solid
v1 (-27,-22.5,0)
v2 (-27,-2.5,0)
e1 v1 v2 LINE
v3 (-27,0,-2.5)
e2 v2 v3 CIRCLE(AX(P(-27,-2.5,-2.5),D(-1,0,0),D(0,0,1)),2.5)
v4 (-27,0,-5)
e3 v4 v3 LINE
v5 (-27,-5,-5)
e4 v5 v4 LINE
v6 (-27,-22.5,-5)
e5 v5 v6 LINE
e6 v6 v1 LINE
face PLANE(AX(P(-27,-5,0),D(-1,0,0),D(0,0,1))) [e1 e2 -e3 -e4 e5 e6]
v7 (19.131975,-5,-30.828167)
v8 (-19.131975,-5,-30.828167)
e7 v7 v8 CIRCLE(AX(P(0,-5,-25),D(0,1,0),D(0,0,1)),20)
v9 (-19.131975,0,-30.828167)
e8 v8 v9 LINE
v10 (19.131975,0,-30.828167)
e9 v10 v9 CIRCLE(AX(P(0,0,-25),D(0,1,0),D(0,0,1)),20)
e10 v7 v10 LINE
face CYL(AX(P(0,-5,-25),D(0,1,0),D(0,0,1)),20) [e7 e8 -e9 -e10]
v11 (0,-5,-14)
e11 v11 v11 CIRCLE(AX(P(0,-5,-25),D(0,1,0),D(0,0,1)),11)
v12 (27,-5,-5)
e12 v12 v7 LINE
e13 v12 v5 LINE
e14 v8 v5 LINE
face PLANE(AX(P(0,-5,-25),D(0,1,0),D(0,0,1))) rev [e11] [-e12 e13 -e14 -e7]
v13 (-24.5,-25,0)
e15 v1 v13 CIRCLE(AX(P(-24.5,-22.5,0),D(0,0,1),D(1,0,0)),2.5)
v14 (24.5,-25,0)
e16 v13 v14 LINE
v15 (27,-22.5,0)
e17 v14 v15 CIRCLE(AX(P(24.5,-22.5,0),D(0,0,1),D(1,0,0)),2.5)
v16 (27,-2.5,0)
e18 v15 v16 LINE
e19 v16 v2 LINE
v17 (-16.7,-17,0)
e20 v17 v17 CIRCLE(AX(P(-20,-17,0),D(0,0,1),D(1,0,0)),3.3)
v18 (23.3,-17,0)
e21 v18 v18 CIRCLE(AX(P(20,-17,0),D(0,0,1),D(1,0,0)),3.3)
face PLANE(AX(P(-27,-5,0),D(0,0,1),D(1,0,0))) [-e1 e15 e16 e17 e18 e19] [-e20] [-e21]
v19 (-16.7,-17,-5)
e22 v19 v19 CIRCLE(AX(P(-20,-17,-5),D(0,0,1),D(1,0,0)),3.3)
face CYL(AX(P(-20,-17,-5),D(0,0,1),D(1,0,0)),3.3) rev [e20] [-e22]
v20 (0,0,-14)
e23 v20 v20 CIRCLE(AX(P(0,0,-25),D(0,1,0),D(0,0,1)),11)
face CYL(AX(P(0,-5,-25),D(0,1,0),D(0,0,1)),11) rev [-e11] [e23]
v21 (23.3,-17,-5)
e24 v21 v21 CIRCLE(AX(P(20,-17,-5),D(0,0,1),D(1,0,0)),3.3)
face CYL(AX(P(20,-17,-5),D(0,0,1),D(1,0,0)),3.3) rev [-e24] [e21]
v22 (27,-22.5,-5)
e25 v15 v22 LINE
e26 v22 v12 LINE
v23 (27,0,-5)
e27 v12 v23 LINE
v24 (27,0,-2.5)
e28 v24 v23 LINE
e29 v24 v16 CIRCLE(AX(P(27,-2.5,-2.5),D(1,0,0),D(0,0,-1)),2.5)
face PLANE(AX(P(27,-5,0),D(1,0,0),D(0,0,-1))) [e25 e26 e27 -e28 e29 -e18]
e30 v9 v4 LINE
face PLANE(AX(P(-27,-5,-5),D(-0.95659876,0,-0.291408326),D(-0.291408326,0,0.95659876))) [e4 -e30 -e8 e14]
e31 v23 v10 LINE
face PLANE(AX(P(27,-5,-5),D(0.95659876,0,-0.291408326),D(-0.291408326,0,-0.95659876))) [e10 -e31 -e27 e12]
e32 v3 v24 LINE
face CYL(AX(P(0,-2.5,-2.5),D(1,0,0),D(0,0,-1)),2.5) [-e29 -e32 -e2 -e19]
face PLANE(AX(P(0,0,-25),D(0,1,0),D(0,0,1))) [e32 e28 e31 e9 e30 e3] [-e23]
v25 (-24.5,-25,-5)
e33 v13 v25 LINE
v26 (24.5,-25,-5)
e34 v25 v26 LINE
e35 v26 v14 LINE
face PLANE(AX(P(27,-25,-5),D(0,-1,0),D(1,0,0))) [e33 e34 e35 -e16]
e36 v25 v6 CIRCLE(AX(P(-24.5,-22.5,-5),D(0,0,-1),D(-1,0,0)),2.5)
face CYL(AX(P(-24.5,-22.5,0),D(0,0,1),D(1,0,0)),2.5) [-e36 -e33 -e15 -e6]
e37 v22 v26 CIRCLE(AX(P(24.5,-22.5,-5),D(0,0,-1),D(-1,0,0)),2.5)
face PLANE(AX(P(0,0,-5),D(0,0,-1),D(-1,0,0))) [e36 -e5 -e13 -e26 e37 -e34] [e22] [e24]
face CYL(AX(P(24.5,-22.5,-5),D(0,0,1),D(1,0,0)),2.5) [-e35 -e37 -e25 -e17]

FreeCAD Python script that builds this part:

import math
import FreeCAD as App
import Part
import Sketcher
from FreeCAD import Vector


def edges_at(feature, points):
    """Names of the edges that pass closest to the given points."""
    edges = feature.Shape.Edges
    near = lambda p: min(range(len(edges)), key=lambda i: edges[i].distToShape(Part.Vertex(*p))[0])
    return sorted({f"Edge{near(p) + 1}" for p in points})

doc = App.newDocument("Part")
body = doc.addObject("PartDesign::Body", "Body")

# Sketch on XZ plane
sketch1 = body.newObject("Sketcher::SketchObject", "Sketch")
sketch1.AttachmentSupport = (doc.getObject("XZ_Plane"), [""])
sketch1.MapMode = "FlatFace"
sketch1.addGeometry([
    Part.LineSegment(Vector(-27, 0, 0), Vector(27, 0, 0)),  # 0
    Part.LineSegment(Vector(27, 0, 0), Vector(27, -5, 0)),  # 1
    Part.LineSegment(Vector(27, -5, 0), Vector(19, -31, 0)),  # 2
    Part.ArcOfCircle(Part.Circle(Vector(0, -25, 0), Vector(0, 0, 1), 20), math.radians(-163), math.radians(-17)),  # 3
    Part.LineSegment(Vector(-19, -31, 0), Vector(-27, -5, 0)),  # 4
    Part.LineSegment(Vector(-27, -5, 0), Vector(-27, 0, 0)),  # 5
    Part.Circle(Vector(0, -25, 0), Vector(0, 0, 1), 11),  # 6
], False)
sketch1.addConstraint([
    Sketcher.Constraint("Coincident", 0, 2, 1, 1),
    Sketcher.Constraint("Coincident", 1, 2, 2, 1),
    Sketcher.Constraint("Tangent", 2, 2, 3, 2),
    Sketcher.Constraint("Tangent", 3, 1, 4, 1),
    Sketcher.Constraint("Coincident", 4, 2, 5, 1),
    Sketcher.Constraint("Coincident", 5, 2, 0, 1),
    Sketcher.Constraint("Horizontal", 0),
    Sketcher.Constraint("Vertical", 1),
    Sketcher.Constraint("Vertical", 5),
    Sketcher.Constraint("Coincident", 6, 3, 3, 3),
    Sketcher.Constraint("Symmetric", 0, 2, 5, 2, -1, 1),
    Sketcher.Constraint("Symmetric", 2, 2, 3, 1, -2),
    Sketcher.Constraint("Diameter", 6, 22.0),
    Sketcher.Constraint("Radius", 3, 20.0),
    Sketcher.Constraint("DistanceX", 0, 1, 0, 2, 54.0),
    Sketcher.Constraint("DistanceY", 1, 2, 1, 1, 5.0),
    Sketcher.Constraint("Distance", 2, 27.0),
])
pad1 = body.newObject("PartDesign::Pad", "Pad")
pad1.Profile = sketch1
pad1.Length = 5

# Sketch on XY plane
sketch2 = body.newObject("Sketcher::SketchObject", "Sketch001")
sketch2.AttachmentSupport = (doc.getObject("XY_Plane"), [""])
sketch2.MapMode = "FlatFace"
sketch2.addGeometry([
    Part.LineSegment(Vector(-27, 0, 0), Vector(-27, -25, 0)),  # 0
    Part.LineSegment(Vector(-27, -25, 0), Vector(27, -25, 0)),  # 1
    Part.LineSegment(Vector(27, -25, 0), Vector(27, 0, 0)),  # 2
    Part.LineSegment(Vector(27, 0, 0), Vector(-27, 0, 0)),  # 3
    Part.Circle(Vector(-20, -17, 0), Vector(0, 0, 1), 3.3),  # 4
    Part.Circle(Vector(20, -17, 0), Vector(0, 0, 1), 3.3),  # 5
], False)
sketch2.addConstraint([
    Sketcher.Constraint("Coincident", 0, 2, 1, 1),
    Sketcher.Constraint("Coincident", 1, 2, 2, 1),
    Sketcher.Constraint("Coincident", 2, 2, 3, 1),
    Sketcher.Constraint("Coincident", 3, 2, 0, 1),
    Sketcher.Constraint("Vertical", 0),
    Sketcher.Constraint("Horizontal", 1),
    Sketcher.Constraint("Vertical", 2),
    Sketcher.Constraint("Horizontal", 3),
    Sketcher.Constraint("Equal", 4, 5),
    Sketcher.Constraint("Symmetric", 2, 2, 3, 2, -1, 1),
    Sketcher.Constraint("Symmetric", 4, 3, 5, 3, -2),
    Sketcher.Constraint("Diameter", 4, 6.6),
    Sketcher.Constraint("DistanceX", 1, 1, 1, 2, 54.0),
    Sketcher.Constraint("DistanceY", 0, 2, 0, 1, 25.0),
    Sketcher.Constraint("DistanceX", 4, 3, -1, 1, 20.0),
    Sketcher.Constraint("DistanceY", 4, 3, -1, 1, 17.0),
])
pad2 = body.newObject("PartDesign::Pad", "Pad001")
pad2.Profile = sketch2
pad2.Length = 5
pad2.Reversed = True
doc.recompute()

fillet = body.newObject("PartDesign::Fillet", "Fillet")
fillet.Base = (pad2, edges_at(pad2, [(0, 0, 0)]))
fillet.Radius = 2.5
doc.recompute()

fillet2 = body.newObject("PartDesign::Fillet", "Fillet001")
fillet2.Base = (fillet, edges_at(fillet, [(-27, -25, -2.5), (27, -25, -2.5)]))
fillet2.Radius = 2.5

doc.recompute()
